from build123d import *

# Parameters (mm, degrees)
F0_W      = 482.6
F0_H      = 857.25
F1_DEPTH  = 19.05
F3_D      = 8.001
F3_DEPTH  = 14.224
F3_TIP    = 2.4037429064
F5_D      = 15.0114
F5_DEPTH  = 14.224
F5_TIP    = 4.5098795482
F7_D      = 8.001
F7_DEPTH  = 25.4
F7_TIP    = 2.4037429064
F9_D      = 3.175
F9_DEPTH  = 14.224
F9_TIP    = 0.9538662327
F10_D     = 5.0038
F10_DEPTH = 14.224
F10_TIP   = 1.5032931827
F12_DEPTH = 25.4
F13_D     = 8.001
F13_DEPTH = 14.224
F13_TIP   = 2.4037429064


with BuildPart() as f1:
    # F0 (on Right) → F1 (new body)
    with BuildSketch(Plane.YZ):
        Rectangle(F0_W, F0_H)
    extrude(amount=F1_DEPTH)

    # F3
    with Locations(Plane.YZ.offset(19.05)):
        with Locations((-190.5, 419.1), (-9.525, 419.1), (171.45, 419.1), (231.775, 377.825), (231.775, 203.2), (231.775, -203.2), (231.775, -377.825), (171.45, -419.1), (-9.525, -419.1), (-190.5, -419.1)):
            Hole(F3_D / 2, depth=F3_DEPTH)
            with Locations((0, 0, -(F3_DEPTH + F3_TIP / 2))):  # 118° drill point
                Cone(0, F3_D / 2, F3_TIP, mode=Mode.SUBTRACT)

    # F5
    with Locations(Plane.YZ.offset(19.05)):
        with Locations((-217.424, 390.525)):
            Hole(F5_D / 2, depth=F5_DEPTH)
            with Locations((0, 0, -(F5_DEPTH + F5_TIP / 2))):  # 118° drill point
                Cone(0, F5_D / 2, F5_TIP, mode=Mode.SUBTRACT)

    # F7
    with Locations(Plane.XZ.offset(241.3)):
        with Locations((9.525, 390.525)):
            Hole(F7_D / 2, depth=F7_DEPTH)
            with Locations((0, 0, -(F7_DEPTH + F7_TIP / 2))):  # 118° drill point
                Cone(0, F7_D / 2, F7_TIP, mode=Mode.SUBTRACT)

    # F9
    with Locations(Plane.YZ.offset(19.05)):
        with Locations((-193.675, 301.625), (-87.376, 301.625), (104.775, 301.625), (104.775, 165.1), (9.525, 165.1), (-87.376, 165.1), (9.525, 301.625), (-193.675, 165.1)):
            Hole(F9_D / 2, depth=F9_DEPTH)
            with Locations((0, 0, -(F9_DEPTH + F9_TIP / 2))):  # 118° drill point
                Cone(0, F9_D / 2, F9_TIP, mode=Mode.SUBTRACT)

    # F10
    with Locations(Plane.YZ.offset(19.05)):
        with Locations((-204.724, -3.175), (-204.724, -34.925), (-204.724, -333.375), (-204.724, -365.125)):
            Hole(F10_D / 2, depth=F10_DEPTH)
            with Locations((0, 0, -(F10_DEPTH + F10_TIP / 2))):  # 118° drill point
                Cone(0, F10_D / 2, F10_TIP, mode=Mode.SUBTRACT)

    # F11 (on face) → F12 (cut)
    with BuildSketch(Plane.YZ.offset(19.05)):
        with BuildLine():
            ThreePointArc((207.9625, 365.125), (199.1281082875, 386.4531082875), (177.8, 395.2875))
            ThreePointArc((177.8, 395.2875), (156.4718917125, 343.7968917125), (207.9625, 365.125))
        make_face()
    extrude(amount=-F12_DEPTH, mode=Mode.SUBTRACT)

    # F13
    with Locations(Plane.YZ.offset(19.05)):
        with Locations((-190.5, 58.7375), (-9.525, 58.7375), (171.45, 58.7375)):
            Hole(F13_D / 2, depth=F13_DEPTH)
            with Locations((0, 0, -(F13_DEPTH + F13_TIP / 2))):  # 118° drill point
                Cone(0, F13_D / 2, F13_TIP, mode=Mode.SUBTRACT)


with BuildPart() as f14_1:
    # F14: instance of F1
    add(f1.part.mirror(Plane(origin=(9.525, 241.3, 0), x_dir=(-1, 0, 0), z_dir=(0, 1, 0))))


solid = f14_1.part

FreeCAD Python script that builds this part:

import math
import FreeCAD as App
import Part
import Sketcher
Q = App.Units.Quantity


def add_polygon(sketch, points):
    """Adds a closed chain of lines whose ends are joined by coincident constraints."""
    first, n = sketch.GeometryCount, len(points)
    for a, b in zip(points, points[1:] + points[:1]):
        sketch.addGeometry(Part.LineSegment(App.Vector(*a, 0), App.Vector(*b, 0)), False)
    for i in range(n):
        sketch.addConstraint(Sketcher.Constraint("Coincident", first + i, 2, first + (i + 1) % n, 1))

doc = App.newDocument("Part")
body = doc.addObject("PartDesign::Body", "Body")

sketch1 = doc.addObject("Sketcher::SketchObject", "Sketch")
body.addObject(sketch1)
sketch1.AttachmentSupport = (doc.YZ_Plane, [""])
sketch1.MapMode = "FlatFace"
add_polygon(sketch1, [(-241, 429), (-241, -429), (241, -429), (241, 429)])
sketch1.addConstraint([
    Sketcher.Constraint("Vertical", 0),
    Sketcher.Constraint("Horizontal", 1),
    Sketcher.Constraint("Vertical", 2),
    Sketcher.Constraint("Horizontal", 3),
    Sketcher.Constraint("Symmetric", 0, 2, 2, 2, -1, 1),
    Sketcher.Constraint("DistanceX", 1, 1, 1, 2, Q("19 in")),
    Sketcher.Constraint("DistanceY", 0, 2, 0, 1, Q("33.75 in")),
])
pad1 = doc.addObject("PartDesign::Pad", "Pad")
body.addObject(pad1)
pad1.Profile = sketch1
pad1.Length = Q("0.75 in")

sketch2 = doc.addObject("Sketcher::SketchObject", "Sketch001")
body.addObject(sketch2)
sketch2.AttachmentSupport = (doc.YZ_Plane, [""])
sketch2.MapMode = "FlatFace"
sketch2.AttachmentOffset = App.Placement(App.Vector(0, 0, 0.75 * 25.4), App.Rotation())
sketch2.addGeometry([
    Part.Circle(App.Vector(-190.5, 419.1, 0), App.Vector(0, 0, 1), 4),
    Part.Circle(App.Vector(-9.5, 419.1, 0), App.Vector(0, 0, 1), 4),
    Part.Circle(App.Vector(171.4, 419.1, 0), App.Vector(0, 0, 1), 4),
    Part.Circle(App.Vector(231.8, 377.8, 0), App.Vector(0, 0, 1), 4),
    Part.Circle(App.Vector(231.8, 203.2, 0), App.Vector(0, 0, 1), 4),
    Part.Circle(App.Vector(231.8, -203.2, 0), App.Vector(0, 0, 1), 4),
    Part.Circle(App.Vector(231.8, -377.8, 0), App.Vector(0, 0, 1), 4),
    Part.Circle(App.Vector(171.4, -419.1, 0), App.Vector(0, 0, 1), 4),
    Part.Circle(App.Vector(-9.5, -419.1, 0), App.Vector(0, 0, 1), 4),
    Part.Circle(App.Vector(-190.5, -419.1, 0), App.Vector(0, 0, 1), 4),
], False)
sketch2.addConstraint([
    Sketcher.Constraint("Equal", 0, 1),
    Sketcher.Constraint("Equal", 1, 2),
    Sketcher.Constraint("Equal", 2, 3),
    Sketcher.Constraint("Equal", 3, 4),
    Sketcher.Constraint("Equal", 4, 5),
    Sketcher.Constraint("Equal", 5, 6),
    Sketcher.Constraint("Equal", 6, 7),
    Sketcher.Constraint("Equal", 7, 8),
    Sketcher.Constraint("Equal", 8, 9),
    Sketcher.Constraint("Symmetric", 4, 3, 5, 3, -1),
    Sketcher.Constraint("Symmetric", 3, 3, 6, 3, -1),
    Sketcher.Constraint("Symmetric", 2, 3, 7, 3, -1),
    Sketcher.Constraint("Symmetric", 1, 3, 8, 3, -1),
    Sketcher.Constraint("Symmetric", 0, 3, 9, 3, -1),
    Sketcher.Constraint("Horizontal", 0, 3, 1, 3),
    Sketcher.Constraint("Horizontal", 1, 3, 2, 3),
    Sketcher.Constraint("Vertical", 3, 3, 4, 3),
    Sketcher.Constraint("Diameter", 0, Q("0.315 in")),
    Sketcher.Constraint("DistanceY", -1, 1, 4, 3, Q("8 in")),
    Sketcher.Constraint("DistanceY", 7, 3, 2, 3, Q("33 in")),
    Sketcher.Constraint("DistanceX", 0, 3, -1, 1, Q("7.5 in")),
    Sketcher.Constraint("DistanceX", 1, 3, 3, 3, Q("9.5 in")),
    Sketcher.Constraint("DistanceX", -1, 1, 2, 3, Q("6.75 in")),
    Sketcher.Constraint("DistanceY", 6, 3, 3, 3, Q("29.75 in")),
    Sketcher.Constraint("DistanceX", 1, 3, -1, 1, Q("0.375 in")),
])
doc.recompute()
hole = doc.addObject("PartDesign::Hole", "Hole")
body.addObject(hole)
hole.Profile = sketch2
hole.ThreadType = "None"
hole.Diameter = Q("0.315 in")
hole.DepthType = "Dimension"
hole.Depth = Q("0.56 in")
hole.DrillPoint = "Angled"
hole.DrillPointAngle = 118

sketch3 = doc.addObject("Sketcher::SketchObject", "Sketch002")
body.addObject(sketch3)
sketch3.AttachmentSupport = (doc.YZ_Plane, [""])
sketch3.MapMode = "FlatFace"
sketch3.AttachmentOffset = App.Placement(App.Vector(0, 0, 0.75 * 25.4), App.Rotation())
sketch3.addGeometry(Part.Circle(App.Vector(-217, 391, 0), App.Vector(0, 0, 1), 8), False)
sketch3.addConstraint([
    Sketcher.Constraint("Diameter", 0, Q("0.591 in")),
    Sketcher.Constraint("DistanceX", 0, 3, -1, 1, Q("8.56 in")),
    Sketcher.Constraint("DistanceY", -1, 1, 0, 3, Q("15.375 in")),
])
doc.recompute()
hole2 = doc.addObject("PartDesign::Hole", "Hole001")
body.addObject(hole2)
hole2.Profile = sketch3
hole2.ThreadType = "None"
hole2.Diameter = Q("0.591 in")
hole2.DepthType = "Dimension"
hole2.Depth = Q("0.56 in")
hole2.DrillPoint = "Angled"
hole2.DrillPointAngle = 118

sketch4 = doc.addObject("Sketcher::SketchObject", "Sketch003")
body.addObject(sketch4)
sketch4.AttachmentSupport = (doc.XZ_Plane, [""])
sketch4.MapMode = "FlatFace"
sketch4.AttachmentOffset = App.Placement(App.Vector(0, 0, 9.5 * 25.4), App.Rotation())
sketch4.addGeometry(Part.Circle(App.Vector(9.5, 390.5, 0), App.Vector(0, 0, 1), 4), False)
sketch4.addConstraint([
    Sketcher.Constraint("Diameter", 0, Q("0.315 in")),
    Sketcher.Constraint("DistanceX", -1, 1, 0, 3, Q("0.375 in")),
    Sketcher.Constraint("DistanceY", -1, 1, 0, 3, Q("15.375 in")),
])
doc.recompute()
hole3 = doc.addObject("PartDesign::Hole", "Hole002")
body.addObject(hole3)
hole3.Profile = sketch4
hole3.ThreadType = "None"
hole3.Diameter = Q("0.315 in")
hole3.DepthType = "Dimension"
hole3.Depth = Q("1 in")
hole3.DrillPoint = "Angled"
hole3.DrillPointAngle = 118

sketch5 = doc.addObject("Sketcher::SketchObject", "Sketch004")
body.addObject(sketch5)
sketch5.AttachmentSupport = (doc.YZ_Plane, [""])
sketch5.MapMode = "FlatFace"
sketch5.AttachmentOffset = App.Placement(App.Vector(0, 0, 0.75 * 25.4), App.Rotation())
sketch5.addGeometry([
    Part.Circle(App.Vector(-193.7, 301.6, 0), App.Vector(0, 0, 1), 1.6),
    Part.Circle(App.Vector(-87.4, 301.6, 0), App.Vector(0, 0, 1), 1.6),
    Part.Circle(App.Vector(104.8, 301.6, 0), App.Vector(0, 0, 1), 1.6),
    Part.Circle(App.Vector(104.8, 165.1, 0), App.Vector(0, 0, 1), 1.6),
    Part.Circle(App.Vector(9.5, 165.1, 0), App.Vector(0, 0, 1), 1.6),
    Part.Circle(App.Vector(-87.4, 165.1, 0), App.Vector(0, 0, 1), 1.6),
    Part.Circle(App.Vector(9.5, 301.6, 0), App.Vector(0, 0, 1), 1.6),
    Part.Circle(App.Vector(-193.7, 165.1, 0), App.Vector(0, 0, 1), 1.6),
], False)
sketch5.addConstraint([
    Sketcher.Constraint("Equal", 0, 1),
    Sketcher.Constraint("Equal", 1, 2),
    Sketcher.Constraint("Equal", 2, 3),
    Sketcher.Constraint("Equal", 3, 4),
    Sketcher.Constraint("Equal", 4, 5),
    Sketcher.Constraint("Equal", 5, 6),
    Sketcher.Constraint("Equal", 6, 7),
    Sketcher.Constraint("Horizontal", 0, 3, 1, 3),
    Sketcher.Constraint("Horizontal", 1, 3, 2, 3),
    Sketcher.Constraint("Horizontal", 3, 3, 4, 3),
    Sketcher.Constraint("Horizontal", 4, 3, 5, 3),
    Sketcher.Constraint("Horizontal", 2, 3, 6, 3),
    Sketcher.Constraint("Horizontal", 5, 3, 7, 3),
    Sketcher.Constraint("Vertical", 2, 3, 3, 3),
    Sketcher.Constraint("Vertical", 1, 3, 5, 3),
    Sketcher.Constraint("Vertical", 4, 3, 6, 3),
    Sketcher.Constraint("Vertical", 0, 3, 7, 3),
    Sketcher.Constraint("Diameter", 0, Q("0.125 in")),
    Sketcher.Constraint("DistanceX", 0, 3, 4, 3, Q("8 in")),
    Sketcher.Constraint("DistanceY", -1, 1, 3, 3, Q("6.5 in")),
    Sketcher.Constraint("DistanceX", 1, 3, -1, 1, Q("3.44 in")),
    Sketcher.Constraint("DistanceX", 0, 3, 2, 3, Q("11.75 in")),
    Sketcher.Constraint("DistanceX", 0, 3, -1, 1, Q("7.625 in")),
    Sketcher.Constraint("DistanceY", -1, 1, 0, 3, Q("11.875 in")),
])
doc.recompute()
hole4 = doc.addObject("PartDesign::Hole", "Hole003")
body.addObject(hole4)
hole4.Profile = sketch5
hole4.ThreadType = "None"
hole4.Diameter = Q("0.125 in")
hole4.DepthType = "Dimension"
hole4.Depth = Q("0.56 in")
hole4.DrillPoint = "Angled"
hole4.DrillPointAngle = 118

sketch6 = doc.addObject("Sketcher::SketchObject", "Sketch005")
body.addObject(sketch6)
sketch6.AttachmentSupport = (doc.YZ_Plane, [""])
sketch6.MapMode = "FlatFace"
sketch6.AttachmentOffset = App.Placement(App.Vector(0, 0, 0.75 * 25.4), App.Rotation())
sketch6.addGeometry([
    Part.Circle(App.Vector(-204.7, -3.2, 0), App.Vector(0, 0, 1), 2.5),
    Part.Circle(App.Vector(-204.7, -34.9, 0), App.Vector(0, 0, 1), 2.5),
    Part.Circle(App.Vector(-204.7, -333.4, 0), App.Vector(0, 0, 1), 2.5),
    Part.Circle(App.Vector(-204.7, -365.1, 0), App.Vector(0, 0, 1), 2.5),
], False)
sketch6.addConstraint([
    Sketcher.Constraint("Equal", 0, 1),
    Sketcher.Constraint("Equal", 1, 2),
    Sketcher.Constraint("Equal", 2, 3),
    Sketcher.Constraint("Vertical", 0, 3, 1, 3),
    Sketcher.Constraint("Vertical", 1, 3, 2, 3),
    Sketcher.Constraint("Vertical", 2, 3, 3, 3),
    Sketcher.Constraint("Diameter", 0, Q("0.197 in")),
    Sketcher.Constraint("DistanceY", 2, 3, 0, 3, Q("13 in")),
    Sketcher.Constraint("DistanceY", 3, 3, 1, 3, Q("13 in")),
    Sketcher.Constraint("DistanceX", 0, 3, -1, 1, Q("8.06 in")),
    Sketcher.Constraint("DistanceY", 1, 3, 0, 3, Q("1.25 in")),
    Sketcher.Constraint("DistanceY", 0, 3, -1, 1, Q("0.125 in")),
])
doc.recompute()
hole5 = doc.addObject("PartDesign::Hole", "Hole004")
body.addObject(hole5)
hole5.Profile = sketch6
hole5.ThreadType = "None"
hole5.Diameter = Q("0.197 in")
hole5.DepthType = "Dimension"
hole5.Depth = Q("0.56 in")
hole5.DrillPoint = "Angled"
hole5.DrillPointAngle = 118

sketch7 = doc.addObject("Sketcher::SketchObject", "Sketch006")
body.addObject(sketch7)
sketch7.AttachmentSupport = (doc.YZ_Plane, [""])
sketch7.MapMode = "FlatFace"
sketch7.AttachmentOffset = App.Placement(App.Vector(0, 0, 0.75 * 25.4), App.Rotation())
sketch7.addGeometry([
    Part.ArcOfCircle(Part.Circle(App.Vector(178, 365, 0), App.Vector(0, 0, 1), 30), math.radians(0), math.radians(90)),
    Part.ArcOfCircle(Part.Circle(App.Vector(178, 365, 0), App.Vector(0, 0, 1), 30), math.radians(90), math.radians(360)),
], False)
sketch7.addConstraint([
    Sketcher.Constraint("Tangent", 0, 1, 1, 2),
    Sketcher.Constraint("Coincident", 1, 1, 0, 2),
    Sketcher.Constraint("Horizontal", 1, 3, 0, 1),
    Sketcher.Constraint("Vertical", 0, 3, 1, 1),
    Sketcher.Constraint("DistanceX", -1, 1, 0, 3, Q("7 in")),
    Sketcher.Constraint("Radius", 0, Q("1.1875 in")),
    Sketcher.Constraint("DistanceY", -1, 1, 0, 3, Q("14.375 in")),
])
pocket1 = doc.addObject("PartDesign::Pocket", "Pocket")
body.addObject(pocket1)
pocket1.Profile = sketch7
pocket1.Length = Q("1 in")

sketch8 = doc.addObject("Sketcher::SketchObject", "Sketch007")
body.addObject(sketch8)
sketch8.AttachmentSupport = (doc.YZ_Plane, [""])
sketch8.MapMode = "FlatFace"
sketch8.AttachmentOffset = App.Placement(App.Vector(0, 0, 0.75 * 25.4), App.Rotation())
sketch8.addGeometry([
    Part.Circle(App.Vector(-190.5, 58.7, 0), App.Vector(0, 0, 1), 4),
    Part.Circle(App.Vector(-9.5, 58.7, 0), App.Vector(0, 0, 1), 4),
    Part.Circle(App.Vector(171.4, 58.7, 0), App.Vector(0, 0, 1), 4),
], False)
sketch8.addConstraint([
    Sketcher.Constraint("Equal", 0, 1),
    Sketcher.Constraint("Equal", 1, 2),
    Sketcher.Constraint("Horizontal", 0, 3, 1, 3),
    Sketcher.Constraint("Horizontal", 1, 3, 2, 3),
    Sketcher.Constraint("Diameter", 0, Q("0.315 in")),
    Sketcher.Constraint("DistanceX", 0, 3, -1, 1, Q("7.5 in")),
    Sketcher.Constraint("DistanceX", -1, 1, 2, 3, Q("6.75 in")),
    Sketcher.Constraint("DistanceY", -1, 1, 0, 3, Q("2.3125 in")),
    Sketcher.Constraint("DistanceX", 1, 3, -1, 1, Q("0.375 in")),
])
doc.recompute()
hole6 = doc.addObject("PartDesign::Hole", "Hole005")
body.addObject(hole6)
hole6.Profile = sketch8
hole6.ThreadType = "None"
hole6.Diameter = Q("0.315 in")
hole6.DepthType = "Dimension"
hole6.Depth = Q("0.56 in")
hole6.DrillPoint = "Angled"
hole6.DrillPointAngle = 118
body2 = doc.addObject("PartDesign::Body", "Body001")
doc.recompute()

mirroring = doc.addObject("Part::Mirroring", "Mirroring")
mirroring.Source = body
mirroring.Base = App.Vector(9.525, 241.3, 0)
mirroring.Normal = App.Vector(0, 1, 0)
body2.BaseFeature = mirroring
doc.recompute()
body.Visibility = False
mirroring.Visibility = False

doc.recompute()
